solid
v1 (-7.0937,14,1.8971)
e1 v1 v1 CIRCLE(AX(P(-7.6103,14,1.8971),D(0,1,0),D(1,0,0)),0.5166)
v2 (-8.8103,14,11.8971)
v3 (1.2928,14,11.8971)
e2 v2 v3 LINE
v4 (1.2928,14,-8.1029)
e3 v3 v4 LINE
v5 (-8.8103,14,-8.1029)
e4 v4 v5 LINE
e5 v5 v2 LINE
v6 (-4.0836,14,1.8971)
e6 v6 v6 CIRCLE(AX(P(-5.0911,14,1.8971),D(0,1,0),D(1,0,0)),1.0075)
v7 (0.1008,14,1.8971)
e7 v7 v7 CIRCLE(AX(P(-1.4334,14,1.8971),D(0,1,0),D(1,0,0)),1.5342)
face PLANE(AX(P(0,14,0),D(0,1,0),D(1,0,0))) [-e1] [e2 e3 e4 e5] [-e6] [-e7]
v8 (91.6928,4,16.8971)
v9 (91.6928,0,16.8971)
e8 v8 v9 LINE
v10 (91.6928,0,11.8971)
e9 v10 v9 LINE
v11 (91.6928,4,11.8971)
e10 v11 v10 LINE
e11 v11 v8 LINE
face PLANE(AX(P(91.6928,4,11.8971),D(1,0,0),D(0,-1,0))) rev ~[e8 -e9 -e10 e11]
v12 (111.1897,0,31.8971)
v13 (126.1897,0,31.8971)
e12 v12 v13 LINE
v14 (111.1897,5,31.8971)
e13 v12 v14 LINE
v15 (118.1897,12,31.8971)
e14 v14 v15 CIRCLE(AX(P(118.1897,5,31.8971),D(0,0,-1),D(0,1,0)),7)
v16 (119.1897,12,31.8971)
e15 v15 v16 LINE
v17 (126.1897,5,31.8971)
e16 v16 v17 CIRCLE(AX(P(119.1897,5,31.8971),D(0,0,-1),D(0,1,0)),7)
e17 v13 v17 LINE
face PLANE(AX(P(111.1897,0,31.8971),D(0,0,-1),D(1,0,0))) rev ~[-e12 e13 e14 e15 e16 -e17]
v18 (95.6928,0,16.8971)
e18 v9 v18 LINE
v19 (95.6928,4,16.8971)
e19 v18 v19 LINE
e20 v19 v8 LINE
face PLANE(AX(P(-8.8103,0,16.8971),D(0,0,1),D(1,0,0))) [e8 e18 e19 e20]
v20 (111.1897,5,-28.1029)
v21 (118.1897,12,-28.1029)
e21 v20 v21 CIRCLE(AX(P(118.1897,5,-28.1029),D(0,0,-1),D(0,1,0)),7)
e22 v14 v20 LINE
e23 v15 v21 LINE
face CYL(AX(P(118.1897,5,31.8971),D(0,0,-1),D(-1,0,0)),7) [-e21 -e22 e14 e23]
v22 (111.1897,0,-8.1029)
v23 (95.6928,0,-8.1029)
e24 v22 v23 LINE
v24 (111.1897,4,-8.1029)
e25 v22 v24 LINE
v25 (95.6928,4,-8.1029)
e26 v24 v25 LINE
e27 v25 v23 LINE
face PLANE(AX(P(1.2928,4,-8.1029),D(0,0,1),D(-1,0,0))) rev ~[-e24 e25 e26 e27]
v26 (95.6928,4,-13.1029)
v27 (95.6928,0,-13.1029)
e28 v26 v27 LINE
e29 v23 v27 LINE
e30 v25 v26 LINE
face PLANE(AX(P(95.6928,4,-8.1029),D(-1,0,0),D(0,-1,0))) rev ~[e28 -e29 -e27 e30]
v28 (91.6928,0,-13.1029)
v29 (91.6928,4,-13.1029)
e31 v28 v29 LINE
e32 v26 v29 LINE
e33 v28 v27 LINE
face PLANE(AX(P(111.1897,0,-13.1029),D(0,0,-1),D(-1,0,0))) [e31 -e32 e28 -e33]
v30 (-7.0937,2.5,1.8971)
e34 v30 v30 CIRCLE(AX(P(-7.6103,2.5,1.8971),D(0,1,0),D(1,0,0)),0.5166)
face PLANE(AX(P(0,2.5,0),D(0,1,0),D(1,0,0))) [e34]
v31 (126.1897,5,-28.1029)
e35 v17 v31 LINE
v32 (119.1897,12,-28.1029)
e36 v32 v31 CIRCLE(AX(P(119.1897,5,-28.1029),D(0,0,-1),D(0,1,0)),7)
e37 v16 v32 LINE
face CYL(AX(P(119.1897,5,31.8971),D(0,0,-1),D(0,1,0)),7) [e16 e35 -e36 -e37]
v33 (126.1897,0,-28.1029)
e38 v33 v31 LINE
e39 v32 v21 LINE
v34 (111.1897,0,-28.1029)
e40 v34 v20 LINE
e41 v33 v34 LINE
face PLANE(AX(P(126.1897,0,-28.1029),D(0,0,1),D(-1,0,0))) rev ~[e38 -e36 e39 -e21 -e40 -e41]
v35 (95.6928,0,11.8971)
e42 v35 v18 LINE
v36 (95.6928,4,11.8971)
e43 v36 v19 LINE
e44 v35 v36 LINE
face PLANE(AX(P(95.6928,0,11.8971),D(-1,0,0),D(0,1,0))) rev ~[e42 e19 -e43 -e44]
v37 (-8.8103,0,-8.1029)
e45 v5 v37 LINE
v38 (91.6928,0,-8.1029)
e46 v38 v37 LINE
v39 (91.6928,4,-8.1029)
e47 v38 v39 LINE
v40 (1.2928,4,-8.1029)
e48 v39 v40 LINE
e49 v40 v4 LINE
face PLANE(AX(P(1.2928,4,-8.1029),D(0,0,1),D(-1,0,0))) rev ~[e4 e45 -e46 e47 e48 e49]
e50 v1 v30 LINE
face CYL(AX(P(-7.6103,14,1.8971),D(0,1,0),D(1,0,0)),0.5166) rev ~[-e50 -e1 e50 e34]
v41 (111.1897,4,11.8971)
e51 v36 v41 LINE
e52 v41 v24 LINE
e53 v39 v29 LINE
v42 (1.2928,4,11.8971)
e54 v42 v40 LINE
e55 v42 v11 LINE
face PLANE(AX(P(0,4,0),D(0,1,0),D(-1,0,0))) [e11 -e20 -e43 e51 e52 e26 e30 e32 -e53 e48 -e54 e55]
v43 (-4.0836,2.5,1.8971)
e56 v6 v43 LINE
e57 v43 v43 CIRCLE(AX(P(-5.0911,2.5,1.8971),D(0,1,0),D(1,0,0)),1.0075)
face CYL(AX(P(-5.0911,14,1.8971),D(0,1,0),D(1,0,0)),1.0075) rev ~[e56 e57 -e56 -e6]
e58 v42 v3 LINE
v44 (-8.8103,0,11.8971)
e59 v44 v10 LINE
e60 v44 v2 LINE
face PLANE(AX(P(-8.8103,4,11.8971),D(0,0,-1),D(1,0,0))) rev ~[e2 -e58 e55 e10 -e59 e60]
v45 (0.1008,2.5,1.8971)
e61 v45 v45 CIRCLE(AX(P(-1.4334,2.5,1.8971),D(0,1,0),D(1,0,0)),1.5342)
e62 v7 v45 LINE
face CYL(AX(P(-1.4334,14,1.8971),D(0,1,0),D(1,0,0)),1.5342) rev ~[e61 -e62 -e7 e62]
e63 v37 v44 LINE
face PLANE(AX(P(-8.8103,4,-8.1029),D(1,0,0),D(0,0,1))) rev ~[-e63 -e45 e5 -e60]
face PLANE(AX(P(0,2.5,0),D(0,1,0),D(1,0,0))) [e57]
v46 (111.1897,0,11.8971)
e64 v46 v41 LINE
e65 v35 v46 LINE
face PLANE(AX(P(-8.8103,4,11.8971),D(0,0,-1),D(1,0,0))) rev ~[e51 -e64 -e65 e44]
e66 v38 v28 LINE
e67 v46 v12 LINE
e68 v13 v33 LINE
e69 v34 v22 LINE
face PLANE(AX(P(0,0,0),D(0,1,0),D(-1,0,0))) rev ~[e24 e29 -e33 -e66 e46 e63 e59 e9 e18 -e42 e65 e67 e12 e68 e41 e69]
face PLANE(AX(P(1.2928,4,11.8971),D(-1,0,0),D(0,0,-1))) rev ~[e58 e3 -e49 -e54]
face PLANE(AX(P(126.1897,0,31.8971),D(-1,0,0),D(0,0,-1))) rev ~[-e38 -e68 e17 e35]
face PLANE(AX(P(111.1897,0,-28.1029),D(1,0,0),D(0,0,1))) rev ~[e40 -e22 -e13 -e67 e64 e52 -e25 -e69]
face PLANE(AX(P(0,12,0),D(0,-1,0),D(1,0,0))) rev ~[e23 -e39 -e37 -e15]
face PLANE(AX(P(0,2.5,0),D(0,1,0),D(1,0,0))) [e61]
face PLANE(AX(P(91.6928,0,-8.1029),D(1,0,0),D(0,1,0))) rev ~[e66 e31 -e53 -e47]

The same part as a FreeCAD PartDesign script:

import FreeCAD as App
import Part
import Sketcher
from FreeCAD import Vector
Q = App.Units.Quantity


def edges_at(feature, points):
    """Names of the edges that pass closest to the given points."""
    edges = feature.Shape.Edges
    near = lambda p: min(range(len(edges)), key=lambda i: edges[i].distToShape(Part.Vertex(*p))[0])
    return sorted({f"Edge{near(p) + 1}" for p in points})

doc = App.newDocument("Part")
body = doc.addObject("PartDesign::Body", "Body")

sketch1 = body.newObject("Sketcher::SketchObject", "Sketch")
sketch1.AttachmentSupport = (doc.getObject("XZ_Plane"), [""])
sketch1.MapMode = "FlatFace"
sketch1.addGeometry([
    Part.LineSegment(Vector(-9, -8, 0), Vector(-9, 12, 0)),
    Part.LineSegment(Vector(-9, 12, 0), Vector(111, 12, 0)),
    Part.LineSegment(Vector(111, 12, 0), Vector(111, -8, 0)),
    Part.LineSegment(Vector(111, -8, 0), Vector(-9, -8, 0)),
], False)
sketch1.addConstraint([
    Sketcher.Constraint("Coincident", 0, 2, 1, 1),
    Sketcher.Constraint("Coincident", 1, 2, 2, 1),
    Sketcher.Constraint("Coincident", 2, 2, 3, 1),
    Sketcher.Constraint("Coincident", 3, 2, 0, 1),
    Sketcher.Constraint("Vertical", 0),
    Sketcher.Constraint("Horizontal", 1),
    Sketcher.Constraint("Vertical", 2),
    Sketcher.Constraint("Horizontal", 3),
    Sketcher.Constraint("DistanceX", 1, 1, 1, 2, Q("120 mm")),
    Sketcher.Constraint("DistanceY", 0, 1, 0, 2, Q("20 mm")),
    Sketcher.Constraint("DistanceY", -1, 1, 0, 2, Q("11.897 mm")),
    Sketcher.Constraint("DistanceX", 0, 2, -1, 1, Q("8.8103 mm")),
])
pad1 = body.newObject("PartDesign::Pad", "Pad")
pad1.Profile = sketch1
pad1.Length = 4
pad1.Reversed = True

sketch2 = body.newObject("Sketcher::SketchObject", "Sketch001")
sketch2.AttachmentSupport = (doc.getObject("XZ_Plane"), [""])
sketch2.MapMode = "FlatFace"
sketch2.addGeometry([
    Part.LineSegment(Vector(126, 32, 0), Vector(111, 32, 0)),
    Part.LineSegment(Vector(111, 32, 0), Vector(111, -28, 0)),
    Part.LineSegment(Vector(111, -28, 0), Vector(126, -28, 0)),
    Part.LineSegment(Vector(126, -28, 0), Vector(126, 32, 0)),
], False)
sketch2.addConstraint([
    Sketcher.Constraint("Coincident", 0, 2, 1, 1),
    Sketcher.Constraint("Coincident", 1, 2, 2, 1),
    Sketcher.Constraint("Coincident", 2, 2, 3, 1),
    Sketcher.Constraint("Coincident", 3, 2, 0, 1),
    Sketcher.Constraint("Horizontal", 0),
    Sketcher.Constraint("Vertical", 1),
    Sketcher.Constraint("Horizontal", 2),
    Sketcher.Constraint("Vertical", 3),
    Sketcher.Constraint("DistanceX", 0, 2, 0, 1, Q("15 mm")),
    Sketcher.Constraint("DistanceY", 1, 2, 1, 1, Q("60 mm")),
    Sketcher.Constraint("DistanceY", -1, 1, 0, 2, Q("31.897 mm")),
    Sketcher.Constraint("DistanceX", -1, 1, 0, 2, Q("111.1897 mm")),
])
pad2 = body.newObject("PartDesign::Pad", "Pad001")
pad2.Profile = sketch2
pad2.Length = 12
pad2.Reversed = True
doc.recompute()

fillet = body.newObject("PartDesign::Fillet", "Fillet")
fillet.Base = (pad2, edges_at(pad2, [(111.19, 12, 1.897), (126.19, 12, 1.897)]))
fillet.Radius = 7

sketch3 = body.newObject("Sketcher::SketchObject", "Sketch002")
sketch3.AttachmentSupport = (doc.getObject("XZ_Plane"), [""])
sketch3.MapMode = "FlatFace"
sketch3.AttachmentOffset = App.Placement(Vector(0, 0, -4), App.Rotation())
sketch3.addGeometry([
    Part.LineSegment(Vector(-9, -8, 0), Vector(-9, 12, 0)),
    Part.LineSegment(Vector(-9, 12, 0), Vector(1, 12, 0)),
    Part.LineSegment(Vector(1, 12, 0), Vector(1, -8, 0)),
    Part.LineSegment(Vector(1, -8, 0), Vector(-9, -8, 0)),
], False)
sketch3.addConstraint([
    Sketcher.Constraint("Coincident", 0, 2, 1, 1),
    Sketcher.Constraint("Coincident", 1, 2, 2, 1),
    Sketcher.Constraint("Coincident", 2, 2, 3, 1),
    Sketcher.Constraint("Coincident", 3, 2, 0, 1),
    Sketcher.Constraint("Vertical", 0),
    Sketcher.Constraint("Horizontal", 1),
    Sketcher.Constraint("Vertical", 2),
    Sketcher.Constraint("Horizontal", 3),
    Sketcher.Constraint("DistanceY", 0, 1, 0, 2, Q("20 mm")),
    Sketcher.Constraint("DistanceX", 1, 1, 1, 2, Q("10.103 mm")),
    Sketcher.Constraint("DistanceY", -1, 1, 0, 2, Q("11.897 mm")),
    Sketcher.Constraint("DistanceX", 0, 2, -1, 1, Q("8.8103 mm")),
])
pad3 = body.newObject("PartDesign::Pad", "Pad002")
pad3.Profile = sketch3
pad3.Length = 10
pad3.Reversed = True

sketch4 = body.newObject("Sketcher::SketchObject", "Sketch003")
sketch4.AttachmentSupport = (doc.getObject("XZ_Plane"), [""])
sketch4.MapMode = "FlatFace"
sketch4.AttachmentOffset = App.Placement(Vector(0, 0, -14), App.Rotation())
sketch4.addGeometry([
    Part.Circle(Vector(-7.6, 1.9, 0), Vector(0, 0, 1), 0.5),
    Part.Circle(Vector(-5.1, 1.9, 0), Vector(0, 0, 1), 1),
    Part.Circle(Vector(-1.4, 1.9, 0), Vector(0, 0, 1), 1.5),
], False)
sketch4.addConstraint([
    Sketcher.Constraint("Horizontal", 0, 3, 1, 3),
    Sketcher.Constraint("Horizontal", 1, 3, 2, 3),
    Sketcher.Constraint("Diameter", 1, Q("2.015 mm")),
    Sketcher.Constraint("Diameter", 0, Q("1.0332 mm")),
    Sketcher.Constraint("Diameter", 2, Q("3.0684 mm")),
    Sketcher.Constraint("DistanceY", -1, 1, 0, 3, Q("1.897 mm")),
    Sketcher.Constraint("DistanceX", 1, 3, -1, 1, Q("5.091 mm")),
    Sketcher.Constraint("DistanceX", 0, 3, 2, 3, Q("6.177 mm")),
    Sketcher.Constraint("DistanceX", 0, 3, -1, 1, Q("7.6103 mm")),
])
pocket1 = body.newObject("PartDesign::Pocket", "Pocket")
pocket1.Profile = sketch4
pocket1.Length = 11.5
pocket1.Reversed = True

sketch5 = body.newObject("Sketcher::SketchObject", "Sketch004")
sketch5.AttachmentSupport = (doc.getObject("XY_Plane"), [""])
sketch5.MapMode = "FlatFace"
sketch5.AttachmentOffset = App.Placement(Vector(0, 0, -8.1029), App.Rotation())
sketch5.addGeometry([
    Part.LineSegment(Vector(91.7, 4, 0), Vector(95.7, 4, 0)),
    Part.LineSegment(Vector(95.7, 4, 0), Vector(95.7, 0, 0)),
    Part.LineSegment(Vector(95.7, 0, 0), Vector(91.7, 0, 0)),
    Part.LineSegment(Vector(91.7, 0, 0), Vector(91.7, 4, 0)),
], False)
sketch5.addConstraint([
    Sketcher.Constraint("Coincident", 0, 2, 1, 1),
    Sketcher.Constraint("Coincident", 1, 2, 2, 1),
    Sketcher.Constraint("Coincident", 2, 2, 3, 1),
    Sketcher.Constraint("Coincident", 3, 2, 0, 1),
    Sketcher.Constraint("Horizontal", 0),
    Sketcher.Constraint("Vertical", 1),
    Sketcher.Constraint("Horizontal", 2),
    Sketcher.Constraint("Vertical", 3),
    Sketcher.Constraint("PointOnObject", 1, 2, -1),
    Sketcher.Constraint("Equal", 2, 1),
    Sketcher.Constraint("DistanceX", 0, 1, 0, 2, Q("4 mm")),
    Sketcher.Constraint("DistanceX", -1, 1, 0, 2, Q("95.6928 mm")),
])
pad4 = body.newObject("PartDesign::Pad", "Pad003")
pad4.Profile = sketch5
pad4.Length = 5
pad4.Reversed = True

sketch6 = body.newObject("Sketcher::SketchObject", "Sketch005")
sketch6.AttachmentSupport = (doc.getObject("XY_Plane"), [""])
sketch6.MapMode = "FlatFace"
sketch6.AttachmentOffset = App.Placement(Vector(0, 0, 11.8971), App.Rotation())
sketch6.addGeometry([
    Part.LineSegment(Vector(95.7, 0, 0), Vector(95.7, 4, 0)),
    Part.LineSegment(Vector(95.7, 4, 0), Vector(91.7, 4, 0)),
    Part.LineSegment(Vector(91.7, 4, 0), Vector(91.7, 0, 0)),
    Part.LineSegment(Vector(91.7, 0, 0), Vector(95.7, 0, 0)),
], False)
sketch6.addConstraint([
    Sketcher.Constraint("Coincident", 0, 2, 1, 1),
    Sketcher.Constraint("Coincident", 1, 2, 2, 1),
    Sketcher.Constraint("Coincident", 2, 2, 3, 1),
    Sketcher.Constraint("Coincident", 3, 2, 0, 1),
    Sketcher.Constraint("Vertical", 0),
    Sketcher.Constraint("Horizontal", 1),
    Sketcher.Constraint("Vertical", 2),
    Sketcher.Constraint("Horizontal", 3),
    Sketcher.Constraint("PointOnObject", 2, 2, -1),
    Sketcher.Constraint("Equal", 3, 0),
    Sketcher.Constraint("DistanceX", 1, 2, 1, 1, Q("4 mm")),
    Sketcher.Constraint("DistanceX", -1, 1, 0, 2, Q("95.6928 mm")),
])
pad5 = body.newObject("PartDesign::Pad", "Pad004")
pad5.Profile = sketch6
pad5.Length = 5

doc.recompute()
